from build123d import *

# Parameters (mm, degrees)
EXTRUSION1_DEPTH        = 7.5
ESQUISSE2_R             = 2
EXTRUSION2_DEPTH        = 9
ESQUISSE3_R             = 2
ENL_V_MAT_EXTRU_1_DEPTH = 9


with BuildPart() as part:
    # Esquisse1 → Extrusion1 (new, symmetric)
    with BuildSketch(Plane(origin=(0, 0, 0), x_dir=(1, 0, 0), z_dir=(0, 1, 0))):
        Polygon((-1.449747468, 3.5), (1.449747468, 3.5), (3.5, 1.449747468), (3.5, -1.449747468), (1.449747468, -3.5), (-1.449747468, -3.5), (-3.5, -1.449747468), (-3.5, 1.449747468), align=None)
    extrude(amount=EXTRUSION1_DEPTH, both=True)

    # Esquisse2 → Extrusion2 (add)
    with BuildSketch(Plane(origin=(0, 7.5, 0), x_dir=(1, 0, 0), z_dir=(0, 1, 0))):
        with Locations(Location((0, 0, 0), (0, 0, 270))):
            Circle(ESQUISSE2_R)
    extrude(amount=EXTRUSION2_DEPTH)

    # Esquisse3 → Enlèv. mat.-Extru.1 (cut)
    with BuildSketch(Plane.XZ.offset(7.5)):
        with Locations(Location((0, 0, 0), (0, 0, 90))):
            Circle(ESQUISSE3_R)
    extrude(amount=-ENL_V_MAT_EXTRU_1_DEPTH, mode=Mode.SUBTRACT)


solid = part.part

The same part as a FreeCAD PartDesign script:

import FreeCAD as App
import Part
import Sketcher

V = App.Vector
Q = App.Units.Quantity


def add_polygon(sketch, points):
    """Adds a closed chain of lines whose ends are joined by coincident constraints."""
    first, n = sketch.GeometryCount, len(points)
    for a, b in zip(points, points[1:] + points[:1]):
        sketch.addGeometry(Part.LineSegment(App.Vector(*a, 0), App.Vector(*b, 0)), False)
    for i in range(n):
        sketch.addConstraint(Sketcher.Constraint("Coincident", first + i, 2, first + (i + 1) % n, 1))

doc = App.newDocument("Part")
body = doc.addObject("PartDesign::Body", "Body")

# Sketch on XZ plane
sketch1 = body.newObject("Sketcher::SketchObject", "Sketch")
sketch1.AttachmentSupport = (doc.getObject("XZ_Plane"), [""])
sketch1.MapMode = "FlatFace"
add_polygon(sketch1, [(1.449747, -3.5), (-1.449747, -3.5), (-3.5, -1.449747), (-3.5, 1.449747), (-1.449747, 3.5), (1.449747, 3.5), (3.5, 1.449747), (3.5, -1.449747)])  # lines 0-7
sketch1.addConstraint(Sketcher.Constraint("Horizontal", 0))
sketch1.addConstraint(Sketcher.Constraint("Vertical", 2))
sketch1.addConstraint(Sketcher.Constraint("Horizontal", 4))
sketch1.addConstraint(Sketcher.Constraint("Vertical", 6))
sketch1.addConstraint(Sketcher.Constraint("Symmetric", 0, 2, 4, 2, -1, 1))
sketch1.addConstraint(Sketcher.Constraint("Symmetric", 1, 2, 5, 2, -1, 1))
sketch1.addConstraint(Sketcher.Constraint("Perpendicular", 1, 3))
sketch1.addConstraint(Sketcher.Constraint("Perpendicular", 5, 7))
sketch1.addConstraint(Sketcher.Constraint("Horizontal", 2, 2, 5, 2))
sketch1.addConstraint(Sketcher.Constraint("Horizontal", 1, 2, 6, 2))
sketch1.addConstraint(Sketcher.Constraint("Vertical", 0, 2, 3, 2))
sketch1.addConstraint(Sketcher.Constraint("Equal", 4, 2))
sketch1.addConstraint(Sketcher.Constraint("DistanceY", 0, 2, 3, 2, Q("7 mm")))
sketch1.addConstraint(Sketcher.Constraint("DistanceX", 0, 2, 0, 1, Q("2.899495 mm")))
pad1 = body.newObject("PartDesign::Pad", "Pad")
pad1.Profile = sketch1
pad1.Length = 15
pad1.Midplane = True

# Sketch on XZ plane
sketch2 = body.newObject("Sketcher::SketchObject", "Sketch001")
sketch2.AttachmentSupport = (doc.getObject("XZ_Plane"), [""])
sketch2.MapMode = "FlatFace"
sketch2.AttachmentOffset = App.Placement(V(0, 0, -7.5), App.Rotation())
sketch2.addGeometry(Part.Circle(V(0, 0, 0), V(0, 0, 1), 2), False)
sketch2.addConstraint(Sketcher.Constraint("Coincident", 0, 3, -1, 1))
sketch2.addConstraint(Sketcher.Constraint("Diameter", 0, Q("4 mm")))
pad2 = body.newObject("PartDesign::Pad", "Pad001")
pad2.Profile = sketch2
pad2.Length = 9
pad2.Reversed = True

# Sketch on XZ plane
sketch3 = body.newObject("Sketcher::SketchObject", "Sketch002")
sketch3.AttachmentSupport = (doc.getObject("XZ_Plane"), [""])
sketch3.MapMode = "FlatFace"
sketch3.AttachmentOffset = App.Placement(V(0, 0, 7.5), App.Rotation())
sketch3.addGeometry(Part.Circle(V(0, 0, 0), V(0, 0, 1), 2), False)
sketch3.addConstraint(Sketcher.Constraint("Coincident", 0, 3, -1, 1))
sketch3.addConstraint(Sketcher.Constraint("Diameter", 0, Q("4 mm")))
pocket1 = body.newObject("PartDesign::Pocket", "Pocket")
pocket1.Profile = sketch3
pocket1.Length = 9

doc.recompute()
